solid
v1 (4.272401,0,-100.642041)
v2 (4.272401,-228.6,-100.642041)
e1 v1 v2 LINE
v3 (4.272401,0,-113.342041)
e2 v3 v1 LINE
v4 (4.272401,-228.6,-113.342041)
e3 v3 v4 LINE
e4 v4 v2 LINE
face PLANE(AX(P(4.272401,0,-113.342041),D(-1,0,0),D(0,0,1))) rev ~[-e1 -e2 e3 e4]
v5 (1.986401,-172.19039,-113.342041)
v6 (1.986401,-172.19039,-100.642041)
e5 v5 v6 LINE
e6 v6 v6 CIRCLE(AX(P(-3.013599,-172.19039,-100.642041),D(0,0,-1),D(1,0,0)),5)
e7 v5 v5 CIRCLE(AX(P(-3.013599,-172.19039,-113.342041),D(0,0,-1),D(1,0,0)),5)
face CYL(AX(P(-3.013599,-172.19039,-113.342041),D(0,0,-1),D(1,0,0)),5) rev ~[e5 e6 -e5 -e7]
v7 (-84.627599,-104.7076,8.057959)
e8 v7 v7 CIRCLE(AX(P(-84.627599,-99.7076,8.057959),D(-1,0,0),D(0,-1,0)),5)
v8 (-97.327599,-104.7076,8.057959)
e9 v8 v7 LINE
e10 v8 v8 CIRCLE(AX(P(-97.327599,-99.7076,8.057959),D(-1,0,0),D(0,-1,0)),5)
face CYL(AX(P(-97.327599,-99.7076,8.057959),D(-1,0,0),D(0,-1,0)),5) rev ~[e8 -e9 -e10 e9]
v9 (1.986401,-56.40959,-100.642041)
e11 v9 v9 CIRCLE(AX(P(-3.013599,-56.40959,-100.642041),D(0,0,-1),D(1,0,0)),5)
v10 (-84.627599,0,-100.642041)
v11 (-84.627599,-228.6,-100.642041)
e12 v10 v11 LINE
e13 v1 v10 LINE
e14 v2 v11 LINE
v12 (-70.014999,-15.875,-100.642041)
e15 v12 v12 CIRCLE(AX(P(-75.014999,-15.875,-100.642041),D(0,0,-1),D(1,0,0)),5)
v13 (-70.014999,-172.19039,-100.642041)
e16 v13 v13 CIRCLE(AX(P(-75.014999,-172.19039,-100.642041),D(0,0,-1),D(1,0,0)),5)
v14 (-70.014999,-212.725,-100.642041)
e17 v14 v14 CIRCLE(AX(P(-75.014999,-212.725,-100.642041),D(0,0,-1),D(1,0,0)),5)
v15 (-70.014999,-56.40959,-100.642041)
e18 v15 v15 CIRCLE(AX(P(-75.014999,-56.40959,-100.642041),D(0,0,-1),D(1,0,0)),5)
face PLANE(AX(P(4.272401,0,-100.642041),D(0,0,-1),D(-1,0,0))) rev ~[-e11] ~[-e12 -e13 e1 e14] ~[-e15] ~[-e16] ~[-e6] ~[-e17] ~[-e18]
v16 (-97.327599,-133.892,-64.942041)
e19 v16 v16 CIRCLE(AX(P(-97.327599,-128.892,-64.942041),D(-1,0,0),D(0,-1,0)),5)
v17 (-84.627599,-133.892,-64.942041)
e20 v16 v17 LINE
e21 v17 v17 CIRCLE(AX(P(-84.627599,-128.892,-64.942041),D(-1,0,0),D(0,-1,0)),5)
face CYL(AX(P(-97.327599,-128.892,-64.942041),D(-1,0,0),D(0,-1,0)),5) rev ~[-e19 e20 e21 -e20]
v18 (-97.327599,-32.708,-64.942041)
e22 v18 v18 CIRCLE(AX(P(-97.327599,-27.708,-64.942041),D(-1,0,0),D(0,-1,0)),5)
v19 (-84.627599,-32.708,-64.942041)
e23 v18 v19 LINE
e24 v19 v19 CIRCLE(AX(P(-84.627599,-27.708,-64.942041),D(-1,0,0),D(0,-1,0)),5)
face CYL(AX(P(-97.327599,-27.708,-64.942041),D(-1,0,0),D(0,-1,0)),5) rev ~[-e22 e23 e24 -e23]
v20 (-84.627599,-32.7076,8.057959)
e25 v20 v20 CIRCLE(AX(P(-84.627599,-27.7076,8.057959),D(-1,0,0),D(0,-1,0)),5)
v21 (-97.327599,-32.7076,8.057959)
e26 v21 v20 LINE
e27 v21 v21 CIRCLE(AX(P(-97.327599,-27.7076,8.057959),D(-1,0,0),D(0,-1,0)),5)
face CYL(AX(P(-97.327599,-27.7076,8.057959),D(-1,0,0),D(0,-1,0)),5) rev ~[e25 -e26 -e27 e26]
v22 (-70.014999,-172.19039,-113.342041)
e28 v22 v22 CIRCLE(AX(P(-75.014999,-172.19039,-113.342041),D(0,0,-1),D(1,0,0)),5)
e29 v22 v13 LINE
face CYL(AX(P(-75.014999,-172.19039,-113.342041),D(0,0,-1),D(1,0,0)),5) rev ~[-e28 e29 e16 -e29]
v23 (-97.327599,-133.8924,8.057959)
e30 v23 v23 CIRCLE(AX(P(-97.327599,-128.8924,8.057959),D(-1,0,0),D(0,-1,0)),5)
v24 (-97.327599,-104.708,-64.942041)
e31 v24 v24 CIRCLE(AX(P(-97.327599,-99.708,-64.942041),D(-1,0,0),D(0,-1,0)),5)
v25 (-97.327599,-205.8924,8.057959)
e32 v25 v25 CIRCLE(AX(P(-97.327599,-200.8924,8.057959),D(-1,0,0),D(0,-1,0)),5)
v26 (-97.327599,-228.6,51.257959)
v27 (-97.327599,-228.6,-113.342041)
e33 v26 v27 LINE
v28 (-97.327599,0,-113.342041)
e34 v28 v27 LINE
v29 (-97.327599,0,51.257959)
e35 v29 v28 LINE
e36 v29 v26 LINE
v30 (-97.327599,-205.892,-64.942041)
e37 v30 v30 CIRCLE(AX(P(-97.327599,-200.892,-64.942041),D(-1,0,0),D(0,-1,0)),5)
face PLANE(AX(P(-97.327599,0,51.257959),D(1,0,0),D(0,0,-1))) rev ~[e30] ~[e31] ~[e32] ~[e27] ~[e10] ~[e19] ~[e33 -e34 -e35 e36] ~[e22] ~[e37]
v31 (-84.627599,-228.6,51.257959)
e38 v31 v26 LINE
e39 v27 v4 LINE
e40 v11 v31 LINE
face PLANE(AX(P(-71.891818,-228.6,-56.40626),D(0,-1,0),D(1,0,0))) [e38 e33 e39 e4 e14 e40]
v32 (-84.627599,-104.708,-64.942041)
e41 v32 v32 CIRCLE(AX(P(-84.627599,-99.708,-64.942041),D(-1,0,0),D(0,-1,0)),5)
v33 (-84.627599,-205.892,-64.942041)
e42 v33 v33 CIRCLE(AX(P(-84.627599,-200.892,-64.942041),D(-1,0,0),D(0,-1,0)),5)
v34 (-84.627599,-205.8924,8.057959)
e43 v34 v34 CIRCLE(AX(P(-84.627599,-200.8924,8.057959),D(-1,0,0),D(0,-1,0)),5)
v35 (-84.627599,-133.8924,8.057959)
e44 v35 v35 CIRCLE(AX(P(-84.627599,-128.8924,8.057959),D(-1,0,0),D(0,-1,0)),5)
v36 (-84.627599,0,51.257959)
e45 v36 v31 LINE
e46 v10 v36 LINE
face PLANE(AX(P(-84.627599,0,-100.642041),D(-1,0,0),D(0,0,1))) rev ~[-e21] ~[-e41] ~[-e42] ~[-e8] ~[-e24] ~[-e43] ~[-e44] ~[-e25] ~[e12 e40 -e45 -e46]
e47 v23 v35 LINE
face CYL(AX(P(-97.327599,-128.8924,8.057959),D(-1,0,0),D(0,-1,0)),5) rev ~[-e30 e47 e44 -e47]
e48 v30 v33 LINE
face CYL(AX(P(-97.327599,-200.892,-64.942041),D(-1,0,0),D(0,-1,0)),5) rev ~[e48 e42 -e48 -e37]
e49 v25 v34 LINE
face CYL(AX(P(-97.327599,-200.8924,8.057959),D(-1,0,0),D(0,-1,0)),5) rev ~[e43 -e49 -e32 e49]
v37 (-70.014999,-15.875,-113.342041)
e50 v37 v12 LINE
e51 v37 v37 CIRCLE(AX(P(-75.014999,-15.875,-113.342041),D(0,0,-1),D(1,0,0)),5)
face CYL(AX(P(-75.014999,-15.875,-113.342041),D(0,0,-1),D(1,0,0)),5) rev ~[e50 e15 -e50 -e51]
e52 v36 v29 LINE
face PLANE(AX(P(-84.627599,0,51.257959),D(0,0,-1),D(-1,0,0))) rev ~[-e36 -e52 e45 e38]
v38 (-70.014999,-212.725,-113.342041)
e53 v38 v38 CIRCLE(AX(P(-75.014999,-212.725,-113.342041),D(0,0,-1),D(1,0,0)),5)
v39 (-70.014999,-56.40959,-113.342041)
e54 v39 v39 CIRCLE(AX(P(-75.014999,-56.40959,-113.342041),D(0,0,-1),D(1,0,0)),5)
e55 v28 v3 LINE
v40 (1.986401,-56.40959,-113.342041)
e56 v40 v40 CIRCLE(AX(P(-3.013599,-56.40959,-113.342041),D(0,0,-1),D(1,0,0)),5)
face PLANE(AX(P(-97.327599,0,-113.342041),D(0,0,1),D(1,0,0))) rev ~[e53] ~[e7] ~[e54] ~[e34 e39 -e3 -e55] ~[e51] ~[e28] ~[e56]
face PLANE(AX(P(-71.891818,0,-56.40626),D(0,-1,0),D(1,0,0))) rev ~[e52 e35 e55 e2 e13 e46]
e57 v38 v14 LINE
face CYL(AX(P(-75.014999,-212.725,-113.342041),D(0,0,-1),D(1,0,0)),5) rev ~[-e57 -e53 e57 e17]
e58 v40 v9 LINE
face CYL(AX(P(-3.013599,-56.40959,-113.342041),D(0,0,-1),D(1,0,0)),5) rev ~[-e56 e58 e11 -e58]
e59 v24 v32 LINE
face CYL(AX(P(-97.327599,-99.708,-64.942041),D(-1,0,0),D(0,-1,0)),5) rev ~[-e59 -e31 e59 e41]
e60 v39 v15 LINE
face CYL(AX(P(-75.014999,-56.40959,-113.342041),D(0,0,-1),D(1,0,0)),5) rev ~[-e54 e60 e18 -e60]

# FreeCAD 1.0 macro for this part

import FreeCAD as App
import Part
import Sketcher
from FreeCAD import Vector
Q = App.Units.Quantity

doc = App.newDocument("Part")
body = doc.addObject("PartDesign::Body", "Body")

# Sketch on XZ plane
sketch1 = body.newObject("Sketcher::SketchObject", "Sketch")
sketch1.AttachmentSupport = (doc.getObject("XZ_Plane"), [""])
sketch1.MapMode = "FlatFace"
sketch1.addGeometry(Part.LineSegment(Vector(-84.627599, 51.257959, 0), Vector(-97.327599, 51.257959, 0)), False)
sketch1.addGeometry(Part.LineSegment(Vector(-97.327599, 51.257959, 0), Vector(-97.327599, -113.342041, 0)), False)
sketch1.addGeometry(Part.LineSegment(Vector(-97.327599, -113.342041, 0), Vector(4.272401, -113.342041, 0)), False)
sketch1.addGeometry(Part.LineSegment(Vector(4.272401, -113.342041, 0), Vector(4.272401, -100.642041, 0)), False)
sketch1.addGeometry(Part.LineSegment(Vector(4.272401, -100.642041, 0), Vector(-84.627599, -100.642041, 0)), False)
sketch1.addGeometry(Part.LineSegment(Vector(-84.627599, -100.642041, 0), Vector(-84.627599, 51.257959, 0)), False)
sketch1.addConstraint(Sketcher.Constraint("Coincident", 0, 2, 1, 1))
sketch1.addConstraint(Sketcher.Constraint("Coincident", 1, 2, 2, 1))
sketch1.addConstraint(Sketcher.Constraint("Coincident", 2, 2, 3, 1))
sketch1.addConstraint(Sketcher.Constraint("Coincident", 3, 2, 4, 1))
sketch1.addConstraint(Sketcher.Constraint("Coincident", 4, 2, 5, 1))
sketch1.addConstraint(Sketcher.Constraint("Coincident", 5, 2, 0, 1))
sketch1.addConstraint(Sketcher.Constraint("Horizontal", 0))
sketch1.addConstraint(Sketcher.Constraint("Vertical", 1))
sketch1.addConstraint(Sketcher.Constraint("Horizontal", 2))
sketch1.addConstraint(Sketcher.Constraint("Vertical", 3))
sketch1.addConstraint(Sketcher.Constraint("Horizontal", 4))
sketch1.addConstraint(Sketcher.Constraint("Vertical", 5))
sketch1.addConstraint(Sketcher.Constraint("Equal", 0, 3))
sketch1.addConstraint(Sketcher.Constraint("DistanceX", 0, 2, 0, 1, Q("12.7 mm")))
sketch1.addConstraint(Sketcher.Constraint("DistanceX", 2, 1, 2, 2, Q("101.6 mm")))
sketch1.addConstraint(Sketcher.Constraint("DistanceY", 1, 2, 1, 1, Q("164.6 mm")))
sketch1.addConstraint(Sketcher.Constraint("DistanceX", 0, 2, -1, 1, Q("97.327599 mm")))
sketch1.addConstraint(Sketcher.Constraint("DistanceY", -1, 1, 0, 2, Q("51.257959 mm")))
pad1 = body.newObject("PartDesign::Pad", "Pad")
pad1.Profile = sketch1
pad1.Length = 228.6

# Sketch on XY plane
sketch2 = body.newObject("Sketcher::SketchObject", "Sketch001")
sketch2.AttachmentSupport = (doc.getObject("XY_Plane"), [""])
sketch2.MapMode = "FlatFace"
sketch2.AttachmentOffset = App.Placement(Vector(0, 0, -113.342041), App.Rotation())
sketch2.addGeometry(Part.Circle(Vector(-3.013599, -172.19039, 0), Vector(0, 0, 1), 5), False)
sketch2.addGeometry(Part.Circle(Vector(-3.013599, -56.40959, 0), Vector(0, 0, 1), 5), False)
sketch2.addGeometry(Part.Circle(Vector(-75.014999, -172.19039, 0), Vector(0, 0, 1), 5), False)
sketch2.addGeometry(Part.Circle(Vector(-75.014999, -56.40959, 0), Vector(0, 0, 1), 5), False)
sketch2.addGeometry(Part.Circle(Vector(-75.014999, -15.875, 0), Vector(0, 0, 1), 5), False)
sketch2.addGeometry(Part.Circle(Vector(-75.014999, -212.725, 0), Vector(0, 0, 1), 5), False)
sketch2.addConstraint(Sketcher.Constraint("Equal", 0, 1))
sketch2.addConstraint(Sketcher.Constraint("Equal", 1, 2))
sketch2.addConstraint(Sketcher.Constraint("Equal", 2, 3))
sketch2.addConstraint(Sketcher.Constraint("Equal", 3, 4))
sketch2.addConstraint(Sketcher.Constraint("Equal", 4, 5))
sketch2.addConstraint(Sketcher.Constraint("Horizontal", 0, 3, 2, 3))
sketch2.addConstraint(Sketcher.Constraint("Horizontal", 1, 3, 3, 3))
sketch2.addConstraint(Sketcher.Constraint("Vertical", 0, 3, 1, 3))
sketch2.addConstraint(Sketcher.Constraint("Vertical", 2, 3, 3, 3))
sketch2.addConstraint(Sketcher.Constraint("Vertical", 3, 3, 4, 3))
sketch2.addConstraint(Sketcher.Constraint("Vertical", 4, 3, 5, 3))
sketch2.addConstraint(Sketcher.Constraint("Diameter", 0, Q("10 mm")))
sketch2.addConstraint(Sketcher.Constraint("DistanceY", 5, 3, 4, 3, Q("196.85 mm")))
sketch2.addConstraint(Sketcher.Constraint("DistanceX", 2, 3, -1, 1, Q("75.014999 mm")))
sketch2.addConstraint(Sketcher.Constraint("DistanceY", 4, 3, -1, 1, Q("15.875 mm")))
sketch2.addConstraint(Sketcher.Constraint("DistanceX", 0, 3, -1, 1, Q("3.013599 mm")))
sketch2.addConstraint(Sketcher.Constraint("DistanceY", 0, 3, 1, 3, Q("115.7808 mm")))
sketch2.addConstraint(Sketcher.Constraint("DistanceY", 0, 3, -1, 1, Q("172.19039 mm")))
pocket1 = body.newObject("PartDesign::Pocket", "Pocket")
pocket1.Profile = sketch2
pocket1.Length = 25
pocket1.Reversed = True

# Sketch on YZ plane
sketch3 = body.newObject("Sketcher::SketchObject", "Sketch002")
sketch3.AttachmentSupport = (doc.getObject("YZ_Plane"), [""])
sketch3.MapMode = "FlatFace"
sketch3.AttachmentOffset = App.Placement(Vector(0, 0, -97.327599), App.Rotation())
sketch3.addGeometry(Part.Circle(Vector(-200.8924, 8.057959, 0), Vector(0, 0, 1), 5), False)
sketch3.addGeometry(Part.Circle(Vector(-128.8924, 8.057959, 0), Vector(0, 0, 1), 5), False)
sketch3.addGeometry(Part.Circle(Vector(-99.7076, 8.057959, 0), Vector(0, 0, 1), 5), False)
sketch3.addGeometry(Part.Circle(Vector(-27.7076, 8.057959, 0), Vector(0, 0, 1), 5), False)
sketch3.addGeometry(Part.Circle(Vector(-27.708, -64.942041, 0), Vector(0, 0, 1), 5), False)
sketch3.addGeometry(Part.Circle(Vector(-99.708, -64.942041, 0), Vector(0, 0, 1), 5), False)
sketch3.addGeometry(Part.Circle(Vector(-128.892, -64.942041, 0), Vector(0, 0, 1), 5), False)
sketch3.addGeometry(Part.Circle(Vector(-200.892, -64.942041, 0), Vector(0, 0, 1), 5), False)
sketch3.addConstraint(Sketcher.Constraint("Equal", 0, 1))
sketch3.addConstraint(Sketcher.Constraint("Equal", 1, 2))
sketch3.addConstraint(Sketcher.Constraint("Equal", 2, 3))
sketch3.addConstraint(Sketcher.Constraint("Equal", 3, 4))
sketch3.addConstraint(Sketcher.Constraint("Equal", 4, 5))
sketch3.addConstraint(Sketcher.Constraint("Equal", 5, 6))
sketch3.addConstraint(Sketcher.Constraint("Equal", 6, 7))
sketch3.addConstraint(Sketcher.Constraint("Horizontal", 0, 3, 1, 3))
sketch3.addConstraint(Sketcher.Constraint("Horizontal", 1, 3, 2, 3))
sketch3.addConstraint(Sketcher.Constraint("Horizontal", 2, 3, 3, 3))
sketch3.addConstraint(Sketcher.Constraint("Horizontal", 4, 3, 5, 3))
sketch3.addConstraint(Sketcher.Constraint("Horizontal", 5, 3, 6, 3))
sketch3.addConstraint(Sketcher.Constraint("Horizontal", 6, 3, 7, 3))
sketch3.addConstraint(Sketcher.Constraint("Diameter", 0, Q("10 mm")))
sketch3.addConstraint(Sketcher.Constraint("DistanceX", 0, 3, 1, 3, Q("72 mm")))
sketch3.addConstraint(Sketcher.Constraint("DistanceX", 2, 3, 3, 3, Q("72 mm")))
sketch3.addConstraint(Sketcher.Constraint("DistanceY", 4, 3, 3, 3, Q("73 mm")))
sketch3.addConstraint(Sketcher.Constraint("DistanceX", 5, 3, 4, 3, Q("72 mm")))
sketch3.addConstraint(Sketcher.Constraint("DistanceX", 7, 3, 6, 3, Q("72 mm")))
sketch3.addConstraint(Sketcher.Constraint("DistanceX", 4, 3, -1, 1, Q("27.708 mm")))
sketch3.addConstraint(Sketcher.Constraint("DistanceX", 6, 3, -1, 1, Q("128.892 mm")))
sketch3.addConstraint(Sketcher.Constraint("DistanceX", 0, 3, -1, 1, Q("200.8924 mm")))
sketch3.addConstraint(Sketcher.Constraint("DistanceX", 2, 3, -1, 1, Q("99.7076 mm")))
sketch3.addConstraint(Sketcher.Constraint("DistanceY", -1, 1, 0, 3, Q("8.057959 mm")))
pocket2 = body.newObject("PartDesign::Pocket", "Pocket001")
pocket2.Profile = sketch3
pocket2.Type = "ThroughAll"
pocket2.Reversed = True

doc.recompute()
